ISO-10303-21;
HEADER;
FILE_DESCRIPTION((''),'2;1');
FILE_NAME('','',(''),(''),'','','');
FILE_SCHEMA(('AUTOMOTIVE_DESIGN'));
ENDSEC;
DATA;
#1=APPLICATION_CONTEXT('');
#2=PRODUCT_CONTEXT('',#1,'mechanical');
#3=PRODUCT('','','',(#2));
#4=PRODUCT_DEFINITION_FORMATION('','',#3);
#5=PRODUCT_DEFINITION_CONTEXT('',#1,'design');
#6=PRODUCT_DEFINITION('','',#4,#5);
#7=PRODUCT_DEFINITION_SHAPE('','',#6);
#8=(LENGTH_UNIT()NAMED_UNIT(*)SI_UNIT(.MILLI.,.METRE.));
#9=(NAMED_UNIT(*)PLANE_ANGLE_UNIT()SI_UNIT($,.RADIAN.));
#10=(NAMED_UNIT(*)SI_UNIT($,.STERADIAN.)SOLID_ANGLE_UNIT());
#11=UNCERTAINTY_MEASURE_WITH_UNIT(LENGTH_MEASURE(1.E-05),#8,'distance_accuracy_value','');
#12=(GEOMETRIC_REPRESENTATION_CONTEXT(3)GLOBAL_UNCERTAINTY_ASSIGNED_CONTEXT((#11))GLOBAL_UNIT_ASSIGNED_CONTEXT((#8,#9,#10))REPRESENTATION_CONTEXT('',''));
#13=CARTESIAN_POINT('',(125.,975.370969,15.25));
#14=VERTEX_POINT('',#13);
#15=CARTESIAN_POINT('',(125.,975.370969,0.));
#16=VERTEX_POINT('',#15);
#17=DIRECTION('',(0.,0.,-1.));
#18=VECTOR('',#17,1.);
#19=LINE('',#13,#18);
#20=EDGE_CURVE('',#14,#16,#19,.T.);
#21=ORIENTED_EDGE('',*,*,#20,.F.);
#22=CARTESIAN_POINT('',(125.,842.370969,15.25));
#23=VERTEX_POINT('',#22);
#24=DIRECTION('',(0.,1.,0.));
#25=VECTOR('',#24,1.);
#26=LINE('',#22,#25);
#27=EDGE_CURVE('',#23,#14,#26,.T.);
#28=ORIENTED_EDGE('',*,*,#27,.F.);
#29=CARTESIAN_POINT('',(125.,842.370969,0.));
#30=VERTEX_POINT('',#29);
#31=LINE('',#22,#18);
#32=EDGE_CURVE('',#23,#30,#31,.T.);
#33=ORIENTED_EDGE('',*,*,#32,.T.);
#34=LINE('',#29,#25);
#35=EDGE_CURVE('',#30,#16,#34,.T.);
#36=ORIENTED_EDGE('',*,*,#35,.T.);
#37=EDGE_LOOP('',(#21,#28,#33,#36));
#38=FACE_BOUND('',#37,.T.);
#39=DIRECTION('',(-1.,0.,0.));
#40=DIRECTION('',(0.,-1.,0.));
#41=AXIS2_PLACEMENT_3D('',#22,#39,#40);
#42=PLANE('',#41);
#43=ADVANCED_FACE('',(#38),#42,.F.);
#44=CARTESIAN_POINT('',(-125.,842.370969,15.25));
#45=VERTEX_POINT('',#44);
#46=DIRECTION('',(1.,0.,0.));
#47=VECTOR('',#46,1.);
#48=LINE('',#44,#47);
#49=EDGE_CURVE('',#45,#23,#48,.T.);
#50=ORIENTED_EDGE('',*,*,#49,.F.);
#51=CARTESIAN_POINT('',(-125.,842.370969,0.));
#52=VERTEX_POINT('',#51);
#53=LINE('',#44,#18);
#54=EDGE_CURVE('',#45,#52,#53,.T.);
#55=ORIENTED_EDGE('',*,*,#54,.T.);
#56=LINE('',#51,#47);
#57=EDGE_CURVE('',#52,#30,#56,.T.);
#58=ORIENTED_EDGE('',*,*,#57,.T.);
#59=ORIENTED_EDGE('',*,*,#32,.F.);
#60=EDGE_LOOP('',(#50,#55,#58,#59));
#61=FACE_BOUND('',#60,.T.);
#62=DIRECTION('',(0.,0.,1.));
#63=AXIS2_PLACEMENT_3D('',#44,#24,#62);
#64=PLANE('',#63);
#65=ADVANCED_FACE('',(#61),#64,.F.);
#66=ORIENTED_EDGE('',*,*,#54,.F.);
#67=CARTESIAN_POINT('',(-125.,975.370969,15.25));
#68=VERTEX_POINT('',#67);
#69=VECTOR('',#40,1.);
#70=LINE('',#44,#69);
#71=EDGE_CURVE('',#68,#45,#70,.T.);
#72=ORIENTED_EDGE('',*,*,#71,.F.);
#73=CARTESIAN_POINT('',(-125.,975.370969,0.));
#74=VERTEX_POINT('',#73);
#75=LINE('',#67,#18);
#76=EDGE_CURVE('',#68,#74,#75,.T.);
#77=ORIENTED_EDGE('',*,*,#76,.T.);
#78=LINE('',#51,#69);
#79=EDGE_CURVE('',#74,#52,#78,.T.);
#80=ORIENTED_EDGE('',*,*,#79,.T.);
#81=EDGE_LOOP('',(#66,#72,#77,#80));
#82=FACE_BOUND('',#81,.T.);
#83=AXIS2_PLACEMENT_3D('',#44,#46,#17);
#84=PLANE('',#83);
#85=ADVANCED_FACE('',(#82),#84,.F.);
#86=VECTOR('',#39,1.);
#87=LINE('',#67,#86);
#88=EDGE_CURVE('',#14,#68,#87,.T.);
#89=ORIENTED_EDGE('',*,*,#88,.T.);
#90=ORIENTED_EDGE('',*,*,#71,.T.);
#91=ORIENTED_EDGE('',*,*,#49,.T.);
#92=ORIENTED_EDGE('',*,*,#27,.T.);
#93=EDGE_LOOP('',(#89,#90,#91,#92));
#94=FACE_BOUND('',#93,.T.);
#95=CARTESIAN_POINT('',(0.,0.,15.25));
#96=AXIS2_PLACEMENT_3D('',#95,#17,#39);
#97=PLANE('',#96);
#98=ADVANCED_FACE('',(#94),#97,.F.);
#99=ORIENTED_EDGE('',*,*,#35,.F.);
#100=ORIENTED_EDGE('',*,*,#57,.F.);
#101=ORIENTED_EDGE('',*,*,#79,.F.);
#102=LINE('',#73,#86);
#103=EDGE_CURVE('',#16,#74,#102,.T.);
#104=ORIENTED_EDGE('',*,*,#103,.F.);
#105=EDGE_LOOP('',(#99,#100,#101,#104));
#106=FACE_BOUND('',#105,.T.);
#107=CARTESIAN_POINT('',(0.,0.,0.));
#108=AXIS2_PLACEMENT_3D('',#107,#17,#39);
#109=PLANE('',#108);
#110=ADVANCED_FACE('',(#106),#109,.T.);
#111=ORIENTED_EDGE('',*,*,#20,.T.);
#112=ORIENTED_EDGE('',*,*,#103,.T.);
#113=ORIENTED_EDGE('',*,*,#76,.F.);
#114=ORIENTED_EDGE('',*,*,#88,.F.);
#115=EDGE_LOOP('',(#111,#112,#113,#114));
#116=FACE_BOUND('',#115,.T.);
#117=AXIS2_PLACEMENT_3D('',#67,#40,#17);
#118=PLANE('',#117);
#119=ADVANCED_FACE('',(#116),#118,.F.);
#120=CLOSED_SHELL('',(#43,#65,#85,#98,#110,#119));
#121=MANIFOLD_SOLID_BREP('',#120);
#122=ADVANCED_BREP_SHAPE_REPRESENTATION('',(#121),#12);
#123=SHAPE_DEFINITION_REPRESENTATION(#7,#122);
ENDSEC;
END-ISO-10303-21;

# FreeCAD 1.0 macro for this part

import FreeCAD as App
import Part
import Sketcher

V = App.Vector
Q = App.Units.Quantity

doc = App.newDocument("Part")
body = doc.addObject("PartDesign::Body", "Body")

# Sketch on XY plane
sketch1 = doc.addObject("Sketcher::SketchObject", "Sketch")
body.addObject(sketch1)
sketch1.AttachmentSupport = (doc.XY_Plane, [""])
sketch1.MapMode = "FlatFace"
sketch1.addGeometry([
    Part.LineSegment(V(-125, 975, 0), V(-125, 842, 0)),
    Part.LineSegment(V(-125, 842, 0), V(125, 842, 0)),
    Part.LineSegment(V(125, 842, 0), V(125, 975, 0)),
    Part.LineSegment(V(125, 975, 0), V(-125, 975, 0)),
], False)
sketch1.addConstraint([
    Sketcher.Constraint("Coincident", 0, 2, 1, 1),
    Sketcher.Constraint("Coincident", 1, 2, 2, 1),
    Sketcher.Constraint("Coincident", 2, 2, 3, 1),
    Sketcher.Constraint("Coincident", 3, 2, 0, 1),
    Sketcher.Constraint("Vertical", 0),
    Sketcher.Constraint("Horizontal", 1),
    Sketcher.Constraint("Vertical", 2),
    Sketcher.Constraint("Horizontal", 3),
    Sketcher.Constraint("DistanceX", 1, 1, 1, 2, Q("250 mm")),
    Sketcher.Constraint("DistanceY", 0, 2, 0, 1, Q("133 mm")),
    Sketcher.Constraint("DistanceX", 0, 2, -1, 1, Q("125 mm")),
    Sketcher.Constraint("DistanceY", -1, 1, 0, 2, Q("842.370969 mm")),
])
pad1 = doc.addObject("PartDesign::Pad", "Pad")
body.addObject(pad1)
pad1.Profile = sketch1
pad1.Length = 15.25

doc.recompute()
